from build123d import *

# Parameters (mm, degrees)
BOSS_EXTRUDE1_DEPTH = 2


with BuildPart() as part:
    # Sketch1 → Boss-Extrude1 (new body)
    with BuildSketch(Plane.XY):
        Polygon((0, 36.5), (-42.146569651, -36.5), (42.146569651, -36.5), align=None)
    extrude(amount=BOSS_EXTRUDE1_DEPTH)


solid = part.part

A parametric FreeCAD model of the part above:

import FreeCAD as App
import Part
import Sketcher
Q = App.Units.Quantity


def add_polygon(sketch, points):
    """Adds a closed chain of lines whose ends are joined by coincident constraints."""
    first, n = sketch.GeometryCount, len(points)
    for a, b in zip(points, points[1:] + points[:1]):
        sketch.addGeometry(Part.LineSegment(App.Vector(*a, 0), App.Vector(*b, 0)), False)
    for i in range(n):
        sketch.addConstraint(Sketcher.Constraint("Coincident", first + i, 2, first + (i + 1) % n, 1))

doc = App.newDocument("Part")
body = doc.addObject("PartDesign::Body", "Body")

# Sketch on XY plane
sketch1 = body.newObject("Sketcher::SketchObject", "Sketch")
sketch1.AttachmentSupport = (doc.getObject("XY_Plane"), [""])
sketch1.MapMode = "FlatFace"
add_polygon(sketch1, [(0, 36.5), (-42.14657, -36.5), (42.14657, -36.5)])  # lines 0-2
sketch1.addConstraint([
    Sketcher.Constraint("Horizontal", 1),
    Sketcher.Constraint("PointOnObject", 2, 2, -2),
    Sketcher.Constraint("Equal", 0, 2),
    Sketcher.Constraint("Angle", 0, Q("-120 deg")),
    Sketcher.Constraint("DistanceY", 0, 2, 2, 2, Q("73 mm")),
    Sketcher.Constraint("DistanceY", 0, 2, -1, 1, Q("36.5 mm")),
])
pad1 = body.newObject("PartDesign::Pad", "Pad")
pad1.Profile = sketch1
pad1.Length = 2

doc.recompute()
